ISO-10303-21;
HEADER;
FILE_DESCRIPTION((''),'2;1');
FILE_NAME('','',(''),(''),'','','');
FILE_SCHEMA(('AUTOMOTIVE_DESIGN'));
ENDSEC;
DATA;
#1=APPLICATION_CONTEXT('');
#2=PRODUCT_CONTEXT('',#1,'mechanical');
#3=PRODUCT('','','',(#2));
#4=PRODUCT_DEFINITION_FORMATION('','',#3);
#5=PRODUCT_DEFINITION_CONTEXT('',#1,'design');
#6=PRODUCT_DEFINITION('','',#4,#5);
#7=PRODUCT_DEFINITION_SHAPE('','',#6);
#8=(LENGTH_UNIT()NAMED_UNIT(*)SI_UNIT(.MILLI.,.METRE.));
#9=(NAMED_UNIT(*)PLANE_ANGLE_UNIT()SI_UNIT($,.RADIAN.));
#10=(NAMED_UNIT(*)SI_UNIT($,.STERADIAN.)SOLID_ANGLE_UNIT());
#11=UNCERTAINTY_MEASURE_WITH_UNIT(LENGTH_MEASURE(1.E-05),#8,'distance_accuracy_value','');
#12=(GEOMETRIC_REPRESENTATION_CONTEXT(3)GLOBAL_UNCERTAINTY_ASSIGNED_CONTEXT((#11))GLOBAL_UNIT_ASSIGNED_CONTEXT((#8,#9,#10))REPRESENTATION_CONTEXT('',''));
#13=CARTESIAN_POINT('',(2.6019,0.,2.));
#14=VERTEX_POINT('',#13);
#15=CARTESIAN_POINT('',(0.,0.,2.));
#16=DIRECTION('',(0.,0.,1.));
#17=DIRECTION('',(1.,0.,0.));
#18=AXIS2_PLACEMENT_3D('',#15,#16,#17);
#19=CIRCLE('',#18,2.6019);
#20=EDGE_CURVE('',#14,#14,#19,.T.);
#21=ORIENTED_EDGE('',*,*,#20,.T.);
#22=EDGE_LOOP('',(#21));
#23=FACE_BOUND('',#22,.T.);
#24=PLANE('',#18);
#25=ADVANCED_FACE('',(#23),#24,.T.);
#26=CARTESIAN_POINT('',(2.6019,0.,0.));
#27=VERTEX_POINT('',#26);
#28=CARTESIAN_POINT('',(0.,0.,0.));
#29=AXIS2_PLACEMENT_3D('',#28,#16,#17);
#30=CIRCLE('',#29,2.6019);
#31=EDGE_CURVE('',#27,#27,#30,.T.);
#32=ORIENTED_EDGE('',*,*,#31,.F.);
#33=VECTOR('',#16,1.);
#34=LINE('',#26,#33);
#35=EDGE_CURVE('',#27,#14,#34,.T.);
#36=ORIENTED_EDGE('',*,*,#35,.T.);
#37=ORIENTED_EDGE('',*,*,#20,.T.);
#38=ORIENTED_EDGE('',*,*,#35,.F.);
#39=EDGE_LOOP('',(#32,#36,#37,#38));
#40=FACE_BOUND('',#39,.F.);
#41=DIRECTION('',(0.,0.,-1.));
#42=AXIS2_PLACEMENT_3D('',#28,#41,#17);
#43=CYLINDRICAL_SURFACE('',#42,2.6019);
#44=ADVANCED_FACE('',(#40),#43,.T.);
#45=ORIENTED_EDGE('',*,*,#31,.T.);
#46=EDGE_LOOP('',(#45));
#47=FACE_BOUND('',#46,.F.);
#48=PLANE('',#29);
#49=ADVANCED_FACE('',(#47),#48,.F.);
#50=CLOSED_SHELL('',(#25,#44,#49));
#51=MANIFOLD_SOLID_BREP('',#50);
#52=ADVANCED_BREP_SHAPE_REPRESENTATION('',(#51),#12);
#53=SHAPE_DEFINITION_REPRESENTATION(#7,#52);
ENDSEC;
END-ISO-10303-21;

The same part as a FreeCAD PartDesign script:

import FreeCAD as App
import Part
import Sketcher
from FreeCAD import Vector

doc = App.newDocument("Part")
params = doc.addObject("Spreadsheet::Sheet", "Params")
for row, (alias, value) in enumerate([
    ("pad1_length", "2 mm"),
], start=1):
    params.set(f"A{row}", alias)
    params.set(f"B{row}", "=" + value)
    params.setAlias(f"B{row}", alias)

body = doc.addObject("PartDesign::Body", "Body")

# Sketch on XY plane
sketch1 = body.newObject("Sketcher::SketchObject", "Sketch")
sketch1.AttachmentSupport = (doc.getObject("XY_Plane"), [""])
sketch1.MapMode = "FlatFace"
sketch1.addGeometry(Part.Circle(Vector(0, 0, 0), Vector(0, 0, 1), 2.6), False)
sketch1.addConstraint([
    Sketcher.Constraint("Coincident", 0, 3, -1, 1),
    Sketcher.Constraint("Diameter", 0, 5.2038),
])
pad1 = body.newObject("PartDesign::Pad", "Pad")
pad1.Profile = sketch1
pad1.setExpression("Length", "Params.pad1_length")

doc.recompute()
